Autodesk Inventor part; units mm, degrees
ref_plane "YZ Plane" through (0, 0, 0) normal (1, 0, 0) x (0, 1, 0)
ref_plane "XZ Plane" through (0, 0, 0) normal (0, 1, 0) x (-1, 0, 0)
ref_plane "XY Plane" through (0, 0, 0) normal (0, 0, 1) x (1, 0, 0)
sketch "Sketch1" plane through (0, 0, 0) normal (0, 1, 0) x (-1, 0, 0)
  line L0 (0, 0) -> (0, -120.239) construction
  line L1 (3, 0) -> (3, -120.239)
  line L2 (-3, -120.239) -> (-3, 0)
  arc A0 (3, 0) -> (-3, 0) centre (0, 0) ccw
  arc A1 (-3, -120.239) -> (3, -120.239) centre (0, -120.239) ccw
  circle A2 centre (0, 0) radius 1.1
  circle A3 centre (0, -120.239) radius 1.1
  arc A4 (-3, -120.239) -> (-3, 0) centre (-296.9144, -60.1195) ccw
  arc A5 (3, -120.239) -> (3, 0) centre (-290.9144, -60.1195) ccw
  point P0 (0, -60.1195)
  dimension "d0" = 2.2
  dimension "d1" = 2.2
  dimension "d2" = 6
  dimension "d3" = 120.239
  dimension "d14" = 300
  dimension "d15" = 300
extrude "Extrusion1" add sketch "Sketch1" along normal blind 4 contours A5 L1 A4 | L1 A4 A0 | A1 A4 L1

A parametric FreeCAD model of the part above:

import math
import FreeCAD as App
import Part
import Sketcher
Q = App.Units.Quantity

doc = App.newDocument("Part")
body = doc.addObject("PartDesign::Body", "Body")

# Sketch on XZ plane
sketch1 = body.newObject("Sketcher::SketchObject", "Sketch")
sketch1.AttachmentSupport = (doc.getObject("XZ_Plane"), [""])
sketch1.MapMode = "FlatFace"
sketch1.addGeometry([
    Part.ArcOfCircle(Part.Circle(App.Vector(290.9, -60.1, 0), App.Vector(0, 0, 1), 300), math.radians(168), math.radians(192)),  # 0
    Part.ArcOfCircle(Part.Circle(App.Vector(0, 0, 0), App.Vector(0, 0, 1), 3), math.radians(0), math.radians(180)),  # 1
    Part.ArcOfCircle(Part.Circle(App.Vector(296.9, -60.1, 0), App.Vector(0, 0, 1), 300), math.radians(168), math.radians(192)),  # 2
    Part.ArcOfCircle(Part.Circle(App.Vector(0, -120.2, 0), App.Vector(0, 0, 1), 3), math.radians(180), math.radians(360)),  # 3
    Part.Circle(App.Vector(0, -120.2, 0), App.Vector(0, 0, 1), 1.1),  # 4
    Part.Circle(App.Vector(0, 0, 0), App.Vector(0, 0, 1), 1.1),  # 5
], False)
sketch1.addConstraint([
    Sketcher.Constraint("Coincident", 0, 1, 1, 2),
    Sketcher.Constraint("Coincident", 1, 1, 2, 1),
    Sketcher.Constraint("Coincident", 2, 2, 3, 2),
    Sketcher.Constraint("Coincident", 3, 1, 0, 2),
    Sketcher.Constraint("Coincident", 1, 3, -1, 1),
    Sketcher.Constraint("Coincident", 5, 3, -1, 1),
    Sketcher.Constraint("Coincident", 4, 3, 3, 3),
    Sketcher.Constraint("Equal", 0, 2),
    Sketcher.Constraint("Equal", 1, 3),
    Sketcher.Constraint("Equal", 4, 5),
    Sketcher.Constraint("Symmetric", 2, 2, 3, 1, -2),
    Sketcher.Constraint("PointOnObject", 0, 1, -1),
    Sketcher.Constraint("PointOnObject", 1, 1, -1),
    Sketcher.Constraint("Horizontal", 4, 3, 2, 2),
    Sketcher.Constraint("Radius", 0, Q("300 mm")),
    Sketcher.Constraint("Radius", 1, Q("3 mm")),
    Sketcher.Constraint("Diameter", 4, Q("2.2 mm")),
    Sketcher.Constraint("DistanceY", 3, 3, -1, 1, Q("120.239 mm")),
])
pad1 = body.newObject("PartDesign::Pad", "Pad")
pad1.Profile = sketch1
pad1.Length = 4
pad1.Reversed = True

doc.recompute()
